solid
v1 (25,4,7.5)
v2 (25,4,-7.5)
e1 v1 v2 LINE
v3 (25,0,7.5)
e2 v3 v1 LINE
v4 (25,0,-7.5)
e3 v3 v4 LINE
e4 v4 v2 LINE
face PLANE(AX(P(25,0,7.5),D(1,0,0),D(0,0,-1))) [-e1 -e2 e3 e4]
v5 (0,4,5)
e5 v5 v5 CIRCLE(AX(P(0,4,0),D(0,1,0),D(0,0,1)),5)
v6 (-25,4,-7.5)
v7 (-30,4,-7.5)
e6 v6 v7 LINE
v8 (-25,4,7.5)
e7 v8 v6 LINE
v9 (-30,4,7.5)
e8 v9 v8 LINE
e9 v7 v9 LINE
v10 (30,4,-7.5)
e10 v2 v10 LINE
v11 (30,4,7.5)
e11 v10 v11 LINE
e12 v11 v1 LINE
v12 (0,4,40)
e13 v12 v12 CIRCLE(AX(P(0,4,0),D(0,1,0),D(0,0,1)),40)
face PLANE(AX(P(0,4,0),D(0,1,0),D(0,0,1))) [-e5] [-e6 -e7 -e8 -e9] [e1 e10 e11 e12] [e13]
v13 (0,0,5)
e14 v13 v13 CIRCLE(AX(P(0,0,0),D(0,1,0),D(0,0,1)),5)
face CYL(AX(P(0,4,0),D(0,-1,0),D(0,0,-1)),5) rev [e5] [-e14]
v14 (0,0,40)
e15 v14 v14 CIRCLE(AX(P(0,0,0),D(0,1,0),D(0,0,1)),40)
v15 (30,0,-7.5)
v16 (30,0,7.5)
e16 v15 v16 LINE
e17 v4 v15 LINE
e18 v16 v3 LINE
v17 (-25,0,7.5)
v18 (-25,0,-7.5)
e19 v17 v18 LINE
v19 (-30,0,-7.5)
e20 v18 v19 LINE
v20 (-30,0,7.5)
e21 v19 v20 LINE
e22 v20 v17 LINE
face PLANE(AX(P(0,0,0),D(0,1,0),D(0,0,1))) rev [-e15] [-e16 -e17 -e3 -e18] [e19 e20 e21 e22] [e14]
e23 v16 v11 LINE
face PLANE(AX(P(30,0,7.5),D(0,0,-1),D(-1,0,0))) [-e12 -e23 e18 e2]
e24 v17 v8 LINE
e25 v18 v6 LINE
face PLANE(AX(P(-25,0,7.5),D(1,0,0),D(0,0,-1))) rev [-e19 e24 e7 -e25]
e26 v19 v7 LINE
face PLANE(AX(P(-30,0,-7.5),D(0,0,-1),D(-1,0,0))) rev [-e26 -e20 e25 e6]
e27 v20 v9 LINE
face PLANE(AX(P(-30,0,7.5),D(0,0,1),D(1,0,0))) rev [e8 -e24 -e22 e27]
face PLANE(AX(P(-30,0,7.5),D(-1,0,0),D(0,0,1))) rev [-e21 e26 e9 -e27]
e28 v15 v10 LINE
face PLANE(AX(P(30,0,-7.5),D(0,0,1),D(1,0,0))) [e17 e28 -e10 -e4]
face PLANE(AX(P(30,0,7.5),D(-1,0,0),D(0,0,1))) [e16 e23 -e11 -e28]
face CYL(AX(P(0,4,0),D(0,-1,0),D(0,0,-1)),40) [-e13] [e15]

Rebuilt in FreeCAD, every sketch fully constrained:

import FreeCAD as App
import Part
import Sketcher

V = App.Vector


def add_polygon(sketch, points):
    """Adds a closed chain of lines whose ends are joined by coincident constraints."""
    first, n = sketch.GeometryCount, len(points)
    for a, b in zip(points, points[1:] + points[:1]):
        sketch.addGeometry(Part.LineSegment(App.Vector(*a, 0), App.Vector(*b, 0)), False)
    for i in range(n):
        sketch.addConstraint(Sketcher.Constraint("Coincident", first + i, 2, first + (i + 1) % n, 1))

doc = App.newDocument("Part")
params = doc.addObject("Spreadsheet::Sheet", "Params")
for row, (alias, value) in enumerate([
    ("sketch1_diameter", "80 mm"),
    ("sketch1_diameter2", "10 mm"),
    ("pad1_length", "4 mm"),
    ("sketch2_width", "5 mm"),
    ("sketch2_height", "15 mm"),
    ("pocket1_length", "4 mm"),
], start=1):
    params.set(f"A{row}", alias)
    params.set(f"B{row}", "=" + value)
    params.setAlias(f"B{row}", alias)

body = doc.addObject("PartDesign::Body", "Body")

sketch1 = doc.addObject("Sketcher::SketchObject", "Sketch")
body.addObject(sketch1)
sketch1.AttachmentSupport = (doc.XZ_Plane, [""])
sketch1.MapMode = "FlatFace"
sketch1.addGeometry([
    Part.Circle(V(0, 0, 0), V(0, 0, 1), 40),
    Part.Circle(V(0, 0, 0), V(0, 0, 1), 5),
], False)
sketch1.addConstraint([
    Sketcher.Constraint("Coincident", 0, 3, -1, 1),
    Sketcher.Constraint("Coincident", 1, 3, -1, 1),
    Sketcher.Constraint("Diameter", 0, 80.0),
    Sketcher.Constraint("Diameter", 1, 10.0),
])
sketch1.setExpression("Constraints[2]", "Params.sketch1_diameter")
sketch1.setExpression("Constraints[3]", "Params.sketch1_diameter2")
pad1 = doc.addObject("PartDesign::Pad", "Pad")
body.addObject(pad1)
pad1.Profile = sketch1
pad1.setExpression("Length", "Params.pad1_length")
pad1.Reversed = True

sketch2 = doc.addObject("Sketcher::SketchObject", "Sketch001")
body.addObject(sketch2)
sketch2.AttachmentSupport = (doc.XZ_Plane, [""])
sketch2.MapMode = "FlatFace"
sketch2.AttachmentOffset = App.Placement(V(0, 0, -4), App.Rotation())
add_polygon(sketch2, [(-30, -8), (-30, 8), (-25, 8), (-25, -8)])
sketch2.addConstraint([
    Sketcher.Constraint("Vertical", 0),
    Sketcher.Constraint("Horizontal", 1),
    Sketcher.Constraint("Vertical", 2),
    Sketcher.Constraint("Horizontal", 3),
    Sketcher.Constraint("DistanceX", 1, 1, 1, 2, 5.0),
    Sketcher.Constraint("DistanceY", 0, 1, 0, 2, 15.0),
    Sketcher.Constraint("DistanceX", 0, 2, -1, 1, 30.0),
    Sketcher.Constraint("DistanceY", -1, 1, 0, 2, 7.5),
])
sketch2.setExpression("Constraints[8]", "Params.sketch2_width")
sketch2.setExpression("Constraints[9]", "Params.sketch2_height")
pocket1 = doc.addObject("PartDesign::Pocket", "Pocket")
body.addObject(pocket1)
pocket1.Profile = sketch2
pocket1.setExpression("Length", "Params.pocket1_length")
pocket1.Reversed = True
doc.recompute()

mirrored = doc.addObject("PartDesign::Mirrored", "Mirrored")
body.addObject(mirrored)
mirrored.Originals = [pocket1]
mirrored.MirrorPlane = (doc.YZ_Plane, [""])
body.Tip = mirrored

doc.recompute()
